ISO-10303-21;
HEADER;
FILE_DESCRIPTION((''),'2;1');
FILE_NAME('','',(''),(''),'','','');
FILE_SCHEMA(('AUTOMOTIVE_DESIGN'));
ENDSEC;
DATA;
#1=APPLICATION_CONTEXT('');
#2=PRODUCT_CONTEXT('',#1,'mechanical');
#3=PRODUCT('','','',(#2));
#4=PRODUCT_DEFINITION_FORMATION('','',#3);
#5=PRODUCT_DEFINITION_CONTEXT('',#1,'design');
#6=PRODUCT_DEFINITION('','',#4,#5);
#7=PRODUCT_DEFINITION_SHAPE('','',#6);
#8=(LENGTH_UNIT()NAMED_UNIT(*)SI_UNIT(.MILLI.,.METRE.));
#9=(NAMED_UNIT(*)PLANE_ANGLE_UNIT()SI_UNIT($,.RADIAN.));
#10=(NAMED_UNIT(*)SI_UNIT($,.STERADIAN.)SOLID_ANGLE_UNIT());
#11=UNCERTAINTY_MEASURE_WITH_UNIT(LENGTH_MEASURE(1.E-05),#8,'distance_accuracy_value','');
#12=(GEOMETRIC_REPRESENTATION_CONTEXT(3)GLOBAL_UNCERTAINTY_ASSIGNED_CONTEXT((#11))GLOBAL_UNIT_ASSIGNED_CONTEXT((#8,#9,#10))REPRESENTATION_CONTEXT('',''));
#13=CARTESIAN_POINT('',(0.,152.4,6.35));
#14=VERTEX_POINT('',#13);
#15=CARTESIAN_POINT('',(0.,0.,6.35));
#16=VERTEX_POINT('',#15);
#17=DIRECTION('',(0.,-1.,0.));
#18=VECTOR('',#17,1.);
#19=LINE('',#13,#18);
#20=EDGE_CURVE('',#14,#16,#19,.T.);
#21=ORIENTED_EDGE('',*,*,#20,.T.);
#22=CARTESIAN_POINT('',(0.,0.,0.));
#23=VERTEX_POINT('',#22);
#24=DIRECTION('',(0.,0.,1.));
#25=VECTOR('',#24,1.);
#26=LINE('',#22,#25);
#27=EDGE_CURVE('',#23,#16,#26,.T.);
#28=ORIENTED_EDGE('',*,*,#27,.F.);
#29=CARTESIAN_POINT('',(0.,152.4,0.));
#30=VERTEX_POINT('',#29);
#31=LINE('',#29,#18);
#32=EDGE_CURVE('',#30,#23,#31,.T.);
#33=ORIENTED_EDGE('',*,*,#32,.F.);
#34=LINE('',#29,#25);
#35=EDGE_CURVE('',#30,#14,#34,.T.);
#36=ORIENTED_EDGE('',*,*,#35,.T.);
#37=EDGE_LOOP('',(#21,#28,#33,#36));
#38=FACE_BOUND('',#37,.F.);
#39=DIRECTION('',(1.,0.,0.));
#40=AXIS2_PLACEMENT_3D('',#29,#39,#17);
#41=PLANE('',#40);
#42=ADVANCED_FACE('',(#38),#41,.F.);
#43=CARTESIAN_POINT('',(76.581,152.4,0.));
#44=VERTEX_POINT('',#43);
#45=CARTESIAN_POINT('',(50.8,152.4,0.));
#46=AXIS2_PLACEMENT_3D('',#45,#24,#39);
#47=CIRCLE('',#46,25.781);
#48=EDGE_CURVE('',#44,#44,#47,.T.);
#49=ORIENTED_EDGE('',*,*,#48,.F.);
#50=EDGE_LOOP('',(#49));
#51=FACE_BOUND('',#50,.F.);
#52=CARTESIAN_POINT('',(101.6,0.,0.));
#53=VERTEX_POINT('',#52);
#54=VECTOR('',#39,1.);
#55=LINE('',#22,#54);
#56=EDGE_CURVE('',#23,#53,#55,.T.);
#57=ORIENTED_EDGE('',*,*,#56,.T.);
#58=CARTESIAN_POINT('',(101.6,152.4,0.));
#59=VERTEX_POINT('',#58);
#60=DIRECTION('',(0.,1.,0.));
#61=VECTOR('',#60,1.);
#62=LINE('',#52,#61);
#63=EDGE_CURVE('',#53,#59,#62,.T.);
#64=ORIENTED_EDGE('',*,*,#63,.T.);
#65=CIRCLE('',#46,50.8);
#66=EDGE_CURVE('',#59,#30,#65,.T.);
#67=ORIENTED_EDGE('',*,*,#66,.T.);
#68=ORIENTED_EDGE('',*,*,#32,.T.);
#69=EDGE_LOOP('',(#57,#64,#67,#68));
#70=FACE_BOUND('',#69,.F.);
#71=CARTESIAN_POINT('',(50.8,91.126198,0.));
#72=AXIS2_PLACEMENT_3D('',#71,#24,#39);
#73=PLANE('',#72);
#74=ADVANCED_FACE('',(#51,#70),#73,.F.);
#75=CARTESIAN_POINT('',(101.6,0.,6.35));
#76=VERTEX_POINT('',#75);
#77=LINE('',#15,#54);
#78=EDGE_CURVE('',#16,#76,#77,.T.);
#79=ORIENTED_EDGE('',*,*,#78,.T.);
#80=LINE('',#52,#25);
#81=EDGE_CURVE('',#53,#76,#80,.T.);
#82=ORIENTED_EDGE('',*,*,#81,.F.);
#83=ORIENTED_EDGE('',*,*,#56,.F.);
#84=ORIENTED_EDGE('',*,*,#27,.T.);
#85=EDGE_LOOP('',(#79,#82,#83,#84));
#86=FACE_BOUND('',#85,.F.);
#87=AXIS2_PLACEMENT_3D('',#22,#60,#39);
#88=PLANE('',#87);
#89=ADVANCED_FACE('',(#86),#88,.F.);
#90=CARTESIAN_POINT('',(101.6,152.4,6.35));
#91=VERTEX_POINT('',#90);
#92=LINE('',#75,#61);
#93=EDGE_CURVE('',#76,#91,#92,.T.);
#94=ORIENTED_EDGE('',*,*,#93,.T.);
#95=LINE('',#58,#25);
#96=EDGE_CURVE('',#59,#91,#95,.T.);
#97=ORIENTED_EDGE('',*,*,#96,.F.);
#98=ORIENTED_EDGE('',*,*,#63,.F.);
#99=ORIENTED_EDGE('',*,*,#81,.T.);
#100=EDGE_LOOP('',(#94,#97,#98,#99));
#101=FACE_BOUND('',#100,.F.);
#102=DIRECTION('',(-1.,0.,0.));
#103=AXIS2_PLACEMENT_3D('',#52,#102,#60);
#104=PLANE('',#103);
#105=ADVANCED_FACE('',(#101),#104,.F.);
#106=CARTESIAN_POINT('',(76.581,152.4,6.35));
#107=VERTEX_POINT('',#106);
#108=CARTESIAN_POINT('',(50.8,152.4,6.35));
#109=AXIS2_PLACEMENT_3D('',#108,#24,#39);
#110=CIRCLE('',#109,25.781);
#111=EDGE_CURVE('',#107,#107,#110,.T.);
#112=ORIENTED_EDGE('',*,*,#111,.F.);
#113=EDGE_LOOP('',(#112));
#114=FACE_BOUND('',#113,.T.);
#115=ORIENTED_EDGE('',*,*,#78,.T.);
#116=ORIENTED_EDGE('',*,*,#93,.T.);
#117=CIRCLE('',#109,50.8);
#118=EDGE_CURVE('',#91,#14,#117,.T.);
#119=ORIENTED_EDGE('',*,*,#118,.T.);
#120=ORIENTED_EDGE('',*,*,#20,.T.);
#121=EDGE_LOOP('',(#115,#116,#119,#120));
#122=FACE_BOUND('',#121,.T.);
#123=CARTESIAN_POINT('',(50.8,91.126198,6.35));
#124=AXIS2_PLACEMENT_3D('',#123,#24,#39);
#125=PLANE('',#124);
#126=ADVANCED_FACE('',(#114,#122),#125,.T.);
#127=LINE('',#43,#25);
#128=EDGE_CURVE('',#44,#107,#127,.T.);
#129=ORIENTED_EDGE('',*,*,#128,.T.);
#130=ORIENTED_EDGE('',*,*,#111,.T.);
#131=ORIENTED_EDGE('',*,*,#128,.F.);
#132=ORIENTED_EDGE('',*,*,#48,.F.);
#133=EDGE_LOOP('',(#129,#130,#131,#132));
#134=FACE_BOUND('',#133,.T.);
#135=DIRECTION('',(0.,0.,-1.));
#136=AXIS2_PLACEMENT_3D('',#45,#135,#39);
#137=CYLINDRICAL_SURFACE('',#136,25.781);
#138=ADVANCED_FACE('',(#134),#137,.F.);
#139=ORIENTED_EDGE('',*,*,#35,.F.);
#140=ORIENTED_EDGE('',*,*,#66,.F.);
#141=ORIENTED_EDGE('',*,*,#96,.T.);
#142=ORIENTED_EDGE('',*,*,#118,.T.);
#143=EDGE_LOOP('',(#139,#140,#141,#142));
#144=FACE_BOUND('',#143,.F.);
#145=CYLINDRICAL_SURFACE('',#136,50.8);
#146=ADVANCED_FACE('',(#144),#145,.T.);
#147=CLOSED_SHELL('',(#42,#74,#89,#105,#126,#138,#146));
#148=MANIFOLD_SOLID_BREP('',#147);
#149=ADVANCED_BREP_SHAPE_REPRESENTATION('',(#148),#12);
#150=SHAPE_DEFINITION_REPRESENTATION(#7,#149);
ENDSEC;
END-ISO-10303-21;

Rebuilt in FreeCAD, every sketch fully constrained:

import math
import FreeCAD as App
import Part
import Sketcher

V = App.Vector
Q = App.Units.Quantity

doc = App.newDocument("Part")
body = doc.addObject("PartDesign::Body", "Body")

# Sketch on XY plane
sketch1 = body.newObject("Sketcher::SketchObject", "Sketch")
sketch1.AttachmentSupport = (doc.getObject("XY_Plane"), [""])
sketch1.MapMode = "FlatFace"
sketch1.addGeometry([
    Part.LineSegment(V(0, 152, 0), V(0, 0, 0)),  # 0
    Part.LineSegment(V(0, 0, 0), V(102, 0, 0)),  # 1
    Part.LineSegment(V(102, 0, 0), V(102, 152, 0)),  # 2
    Part.ArcOfCircle(Part.Circle(V(51, 152, 0), V(0, 0, 1), 51), math.radians(0), math.radians(180)),  # 3
    Part.Circle(V(51, 152, 0), V(0, 0, 1), 26),  # 4
], False)
sketch1.addConstraint([
    Sketcher.Constraint("Coincident", 0, 2, 1, 1),
    Sketcher.Constraint("Coincident", 1, 2, 2, 1),
    Sketcher.Constraint("Tangent", 2, 2, 3, 1),
    Sketcher.Constraint("Tangent", 3, 2, 0, 1),
    Sketcher.Constraint("Vertical", 0),
    Sketcher.Constraint("Horizontal", 1),
    Sketcher.Constraint("Vertical", 2),
    Sketcher.Constraint("Coincident", 0, 2, -1, 1),
    Sketcher.Constraint("Coincident", 4, 3, 3, 3),
    Sketcher.Constraint("Radius", 3, Q("2 in")),
    Sketcher.Constraint("Diameter", 4, Q("2.03 in")),
    Sketcher.Constraint("DistanceY", 0, 2, 0, 1, Q("6 in")),
])
pad1 = body.newObject("PartDesign::Pad", "Pad")
pad1.Profile = sketch1
pad1.Length = Q("0.25 in")

doc.recompute()
